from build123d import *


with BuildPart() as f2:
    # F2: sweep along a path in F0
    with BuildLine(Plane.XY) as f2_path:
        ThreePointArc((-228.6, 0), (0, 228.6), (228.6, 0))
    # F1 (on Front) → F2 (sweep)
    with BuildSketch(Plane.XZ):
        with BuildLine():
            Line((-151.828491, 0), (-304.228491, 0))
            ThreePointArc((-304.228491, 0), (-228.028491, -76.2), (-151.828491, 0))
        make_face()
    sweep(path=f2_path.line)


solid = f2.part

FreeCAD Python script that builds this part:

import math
import FreeCAD as App
import Part
import Sketcher
from FreeCAD import Vector
Q = App.Units.Quantity

doc = App.newDocument("Part")
body = doc.addObject("PartDesign::Body", "Body")

# Sketch on XZ plane
sketch1 = doc.addObject("Sketcher::SketchObject", "Sketch")
body.addObject(sketch1)
sketch1.AttachmentSupport = (doc.XZ_Plane, [""])
sketch1.MapMode = "FlatFace"
sketch1.addGeometry([
    Part.LineSegment(Vector(-152, 0, 0), Vector(-304, 0, 0)),
    Part.ArcOfCircle(Part.Circle(Vector(-228, 0, 0), Vector(0, 0, 1), 76), math.radians(180), math.radians(360)),
], False)
sketch1.addConstraint([
    Sketcher.Constraint("Coincident", 0, 1, 1, 2),
    Sketcher.Constraint("Coincident", 1, 1, 0, 2),
    Sketcher.Constraint("Horizontal", 0),
    Sketcher.Constraint("PointOnObject", 1, 3, -1),
    Sketcher.Constraint("PointOnObject", 0, 1, -1),
    Sketcher.Constraint("Radius", 1, Q("3 in")),
    Sketcher.Constraint("DistanceX", 1, 3, -1, 1, 228.028491),
])

# Sketch on XY plane
sketch2 = doc.addObject("Sketcher::SketchObject", "Sketch001")
body.addObject(sketch2)
sketch2.AttachmentSupport = (doc.XY_Plane, [""])
sketch2.MapMode = "FlatFace"
sketch2.addGeometry(Part.ArcOfCircle(Part.Circle(Vector(0, 0, 0), Vector(0, 0, 1), 229), math.radians(0), math.radians(180)), False)
sketch2.addConstraint([
    Sketcher.Constraint("Coincident", 0, 3, -1, 1),
    Sketcher.Constraint("PointOnObject", 0, 1, -1),
    Sketcher.Constraint("PointOnObject", 0, 2, -1),
    Sketcher.Constraint("Radius", 0, Q("9 in")),
])
doc.recompute()

additivepipe = doc.addObject("PartDesign::AdditivePipe", "AdditivePipe")
body.addObject(additivepipe)
additivepipe.Profile = sketch1
additivepipe.Spine = (sketch2, ["Edge1"])

doc.recompute()
